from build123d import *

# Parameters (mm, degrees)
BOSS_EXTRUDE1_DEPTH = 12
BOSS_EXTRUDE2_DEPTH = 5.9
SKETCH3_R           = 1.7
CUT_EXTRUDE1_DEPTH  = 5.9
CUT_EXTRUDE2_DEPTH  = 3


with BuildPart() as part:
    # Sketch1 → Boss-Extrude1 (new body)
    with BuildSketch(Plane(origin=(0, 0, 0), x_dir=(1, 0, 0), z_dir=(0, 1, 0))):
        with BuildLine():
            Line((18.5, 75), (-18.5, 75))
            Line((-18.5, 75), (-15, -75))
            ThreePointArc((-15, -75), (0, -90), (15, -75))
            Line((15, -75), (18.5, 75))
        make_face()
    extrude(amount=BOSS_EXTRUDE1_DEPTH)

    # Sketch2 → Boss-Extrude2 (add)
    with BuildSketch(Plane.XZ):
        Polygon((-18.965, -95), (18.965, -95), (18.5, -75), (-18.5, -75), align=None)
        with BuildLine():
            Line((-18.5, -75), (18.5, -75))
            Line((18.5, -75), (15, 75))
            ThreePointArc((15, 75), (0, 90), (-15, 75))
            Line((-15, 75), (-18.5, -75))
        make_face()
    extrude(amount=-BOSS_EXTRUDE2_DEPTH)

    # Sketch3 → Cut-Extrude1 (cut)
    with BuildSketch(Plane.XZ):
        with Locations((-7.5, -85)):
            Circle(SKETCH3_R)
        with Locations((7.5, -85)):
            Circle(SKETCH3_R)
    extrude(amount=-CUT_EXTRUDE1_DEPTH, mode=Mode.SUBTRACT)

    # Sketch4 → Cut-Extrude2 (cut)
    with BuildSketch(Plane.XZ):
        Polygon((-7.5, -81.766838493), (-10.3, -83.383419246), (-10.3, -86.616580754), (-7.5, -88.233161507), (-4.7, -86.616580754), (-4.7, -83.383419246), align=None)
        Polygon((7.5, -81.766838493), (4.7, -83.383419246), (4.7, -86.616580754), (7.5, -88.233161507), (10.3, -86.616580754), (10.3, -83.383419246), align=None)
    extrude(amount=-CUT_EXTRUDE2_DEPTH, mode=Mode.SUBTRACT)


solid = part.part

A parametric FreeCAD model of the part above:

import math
import FreeCAD as App
import Part
import Sketcher
from FreeCAD import Vector
Q = App.Units.Quantity

doc = App.newDocument("Part")
body = doc.addObject("PartDesign::Body", "Body")

sketch1 = body.newObject("Sketcher::SketchObject", "Sketch")
sketch1.AttachmentSupport = (doc.getObject("XZ_Plane"), [""])
sketch1.MapMode = "FlatFace"
sketch1.addGeometry(Part.LineSegment(Vector(18.5, -75, 0), Vector(-18.5, -75, 0)), False)
sketch1.addGeometry(Part.LineSegment(Vector(-18.5, -75, 0), Vector(-15, 75, 0)), False)
sketch1.addGeometry(Part.ArcOfCircle(Part.Circle(Vector(0, 75, 0), Vector(0, 0, 1), 15), math.radians(0), math.radians(180)), False)
sketch1.addGeometry(Part.LineSegment(Vector(15, 75, 0), Vector(18.5, -75, 0)), False)
sketch1.addConstraint(Sketcher.Constraint("Coincident", 0, 2, 1, 1))
sketch1.addConstraint(Sketcher.Constraint("Coincident", 1, 2, 2, 2))
sketch1.addConstraint(Sketcher.Constraint("Coincident", 2, 1, 3, 1))
sketch1.addConstraint(Sketcher.Constraint("Coincident", 3, 2, 0, 1))
sketch1.addConstraint(Sketcher.Constraint("Horizontal", 0))
sketch1.addConstraint(Sketcher.Constraint("Symmetric", 1, 2, 2, 1, -2))
sketch1.addConstraint(Sketcher.Constraint("Horizontal", 2, 3, 1, 2))
sketch1.addConstraint(Sketcher.Constraint("Equal", 1, 3))
sketch1.addConstraint(Sketcher.Constraint("Radius", 2, Q("15 mm")))
sketch1.addConstraint(Sketcher.Constraint("DistanceX", 0, 2, 0, 1, Q("37 mm")))
sketch1.addConstraint(Sketcher.Constraint("DistanceY", -1, 1, 2, 3, Q("75 mm")))
sketch1.addConstraint(Sketcher.Constraint("DistanceY", 0, 2, -1, 1, Q("75 mm")))
pad1 = body.newObject("PartDesign::Pad", "Pad")
pad1.Profile = sketch1
pad1.Length = 12
pad1.Reversed = True

sketch2 = body.newObject("Sketcher::SketchObject", "Sketch001")
sketch2.AttachmentSupport = (doc.getObject("XZ_Plane"), [""])
sketch2.MapMode = "FlatFace"
sketch2.addGeometry(Part.LineSegment(Vector(-18.965, -95, 0), Vector(18.965, -95, 0)), False)
sketch2.addGeometry(Part.LineSegment(Vector(18.965, -95, 0), Vector(18.5, -75, 0)), False)
sketch2.addGeometry(Part.LineSegment(Vector(18.5, -75, 0), Vector(15, 75, 0)), False)
sketch2.addGeometry(Part.ArcOfCircle(Part.Circle(Vector(0, 75, 0), Vector(0, 0, 1), 15), math.radians(0), math.radians(180)), False)
sketch2.addGeometry(Part.LineSegment(Vector(-15, 75, 0), Vector(-18.5, -75, 0)), False)
sketch2.addGeometry(Part.LineSegment(Vector(-18.5, -75, 0), Vector(-18.965, -95, 0)), False)
sketch2.addConstraint(Sketcher.Constraint("Coincident", 0, 2, 1, 1))
sketch2.addConstraint(Sketcher.Constraint("Coincident", 1, 2, 2, 1))
sketch2.addConstraint(Sketcher.Constraint("Coincident", 2, 2, 3, 1))
sketch2.addConstraint(Sketcher.Constraint("Coincident", 3, 2, 4, 1))
sketch2.addConstraint(Sketcher.Constraint("Coincident", 4, 2, 5, 1))
sketch2.addConstraint(Sketcher.Constraint("Coincident", 5, 2, 0, 1))
sketch2.addConstraint(Sketcher.Constraint("Horizontal", 0))
sketch2.addConstraint(Sketcher.Constraint("Symmetric", 2, 2, 3, 2, -2))
sketch2.addConstraint(Sketcher.Constraint("Symmetric", 1, 2, 4, 2, -2))
sketch2.addConstraint(Sketcher.Constraint("Horizontal", 3, 3, 2, 2))
sketch2.addConstraint(Sketcher.Constraint("Equal", 1, 5))
sketch2.addConstraint(Sketcher.Constraint("Radius", 3, Q("15 mm")))
sketch2.addConstraint(Sketcher.Constraint("DistanceY", -1, 1, 3, 3, Q("75 mm")))
sketch2.addConstraint(Sketcher.Constraint("DistanceY", 0, 2, -1, 1, Q("95 mm")))
sketch2.addConstraint(Sketcher.Constraint("DistanceY", 1, 2, -1, 1, Q("75 mm")))
sketch2.addConstraint(Sketcher.Constraint("DistanceX", 4, 2, 1, 2, Q("37 mm")))
sketch2.addConstraint(Sketcher.Constraint("DistanceX", 0, 1, 0, 2, Q("37.93 mm")))
pad2 = body.newObject("PartDesign::Pad", "Pad001")
pad2.Profile = sketch2
pad2.Length = 5.9
pad2.Reversed = True

sketch3 = body.newObject("Sketcher::SketchObject", "Sketch002")
sketch3.AttachmentSupport = (doc.getObject("XZ_Plane"), [""])
sketch3.MapMode = "FlatFace"
sketch3.addGeometry(Part.Circle(Vector(-7.5, -85, 0), Vector(0, 0, 1), 1.7), False)
sketch3.addGeometry(Part.Circle(Vector(7.5, -85, 0), Vector(0, 0, 1), 1.7), False)
sketch3.addConstraint(Sketcher.Constraint("Equal", 0, 1))
sketch3.addConstraint(Sketcher.Constraint("Symmetric", 0, 3, 1, 3, -2))
sketch3.addConstraint(Sketcher.Constraint("Diameter", 0, Q("3.4 mm")))
sketch3.addConstraint(Sketcher.Constraint("DistanceY", 0, 3, -1, 1, Q("85 mm")))
sketch3.addConstraint(Sketcher.Constraint("DistanceX", 0, 3, 1, 3, Q("15 mm")))
pocket1 = body.newObject("PartDesign::Pocket", "Pocket")
pocket1.Profile = sketch3
pocket1.Length = 5.9

sketch4 = body.newObject("Sketcher::SketchObject", "Sketch003")
sketch4.AttachmentSupport = (doc.getObject("XZ_Plane"), [""])
sketch4.MapMode = "FlatFace"
sketch4.addGeometry(Part.LineSegment(Vector(-7.5, -81.766838, 0), Vector(-10.3, -83.383419, 0)), False)
sketch4.addGeometry(Part.LineSegment(Vector(-10.3, -83.383419, 0), Vector(-10.3, -86.616581, 0)), False)
sketch4.addGeometry(Part.LineSegment(Vector(-10.3, -86.616581, 0), Vector(-7.5, -88.233162, 0)), False)
sketch4.addGeometry(Part.LineSegment(Vector(-7.5, -88.233162, 0), Vector(-4.7, -86.616581, 0)), False)
sketch4.addGeometry(Part.LineSegment(Vector(-4.7, -86.616581, 0), Vector(-4.7, -83.383419, 0)), False)
sketch4.addGeometry(Part.LineSegment(Vector(-4.7, -83.383419, 0), Vector(-7.5, -81.766838, 0)), False)
sketch4.addGeometry(Part.LineSegment(Vector(7.5, -81.766838, 0), Vector(4.7, -83.383419, 0)), False)
sketch4.addGeometry(Part.LineSegment(Vector(4.7, -83.383419, 0), Vector(4.7, -86.616581, 0)), False)
sketch4.addGeometry(Part.LineSegment(Vector(4.7, -86.616581, 0), Vector(7.5, -88.233162, 0)), False)
sketch4.addGeometry(Part.LineSegment(Vector(7.5, -88.233162, 0), Vector(10.3, -86.616581, 0)), False)
sketch4.addGeometry(Part.LineSegment(Vector(10.3, -86.616581, 0), Vector(10.3, -83.383419, 0)), False)
sketch4.addGeometry(Part.LineSegment(Vector(10.3, -83.383419, 0), Vector(7.5, -81.766838, 0)), False)
sketch4.addConstraint(Sketcher.Constraint("Coincident", 0, 2, 1, 1))
sketch4.addConstraint(Sketcher.Constraint("Coincident", 1, 2, 2, 1))
sketch4.addConstraint(Sketcher.Constraint("Coincident", 2, 2, 3, 1))
sketch4.addConstraint(Sketcher.Constraint("Coincident", 3, 2, 4, 1))
sketch4.addConstraint(Sketcher.Constraint("Coincident", 4, 2, 5, 1))
sketch4.addConstraint(Sketcher.Constraint("Coincident", 5, 2, 0, 1))
sketch4.addConstraint(Sketcher.Constraint("Coincident", 6, 2, 7, 1))
sketch4.addConstraint(Sketcher.Constraint("Coincident", 7, 2, 8, 1))
sketch4.addConstraint(Sketcher.Constraint("Coincident", 8, 2, 9, 1))
sketch4.addConstraint(Sketcher.Constraint("Coincident", 9, 2, 10, 1))
sketch4.addConstraint(Sketcher.Constraint("Coincident", 10, 2, 11, 1))
sketch4.addConstraint(Sketcher.Constraint("Coincident", 11, 2, 6, 1))
sketch4.addConstraint(Sketcher.Constraint("Vertical", 1))
sketch4.addConstraint(Sketcher.Constraint("Vertical", 4))
sketch4.addConstraint(Sketcher.Constraint("Vertical", 7))
sketch4.addConstraint(Sketcher.Constraint("Vertical", 10))
sketch4.addConstraint(Sketcher.Constraint("Symmetric", 4, 2, 6, 2, -2))
sketch4.addConstraint(Sketcher.Constraint("Symmetric", 2, 2, 8, 2, -2))
sketch4.addConstraint(Sketcher.Constraint("Symmetric", 1, 2, 9, 2, -2))
sketch4.addConstraint(Sketcher.Constraint("Symmetric", 5, 2, 11, 2, -2))
sketch4.addConstraint(Sketcher.Constraint("Parallel", 0, 3))
sketch4.addConstraint(Sketcher.Constraint("Parallel", 2, 5))
sketch4.addConstraint(Sketcher.Constraint("Parallel", 3, 6))
sketch4.addConstraint(Sketcher.Constraint("Parallel", 5, 8))
sketch4.addConstraint(Sketcher.Constraint("Parallel", 8, 11))
sketch4.addConstraint(Sketcher.Constraint("Horizontal", 1, 2, 3, 2))
sketch4.addConstraint(Sketcher.Constraint("Horizontal", 0, 2, 4, 2))
sketch4.addConstraint(Sketcher.Constraint("Angle", 0, Q("-150 deg")))
sketch4.addConstraint(Sketcher.Constraint("DistanceX", 0, 2, 6, 2, Q("15 mm")))
sketch4.addConstraint(Sketcher.Constraint("DistanceX", 0, 2, -1, 1, Q("10.3 mm")))
sketch4.addConstraint(Sketcher.Constraint("DistanceY", 1, 2, 1, 1, Q("3.233162 mm")))
sketch4.addConstraint(Sketcher.Constraint("DistanceY", 0, 2, -1, 1, Q("83.383419 mm")))
pocket2 = body.newObject("PartDesign::Pocket", "Pocket001")
pocket2.Profile = sketch4
pocket2.Length = 3

doc.recompute()
